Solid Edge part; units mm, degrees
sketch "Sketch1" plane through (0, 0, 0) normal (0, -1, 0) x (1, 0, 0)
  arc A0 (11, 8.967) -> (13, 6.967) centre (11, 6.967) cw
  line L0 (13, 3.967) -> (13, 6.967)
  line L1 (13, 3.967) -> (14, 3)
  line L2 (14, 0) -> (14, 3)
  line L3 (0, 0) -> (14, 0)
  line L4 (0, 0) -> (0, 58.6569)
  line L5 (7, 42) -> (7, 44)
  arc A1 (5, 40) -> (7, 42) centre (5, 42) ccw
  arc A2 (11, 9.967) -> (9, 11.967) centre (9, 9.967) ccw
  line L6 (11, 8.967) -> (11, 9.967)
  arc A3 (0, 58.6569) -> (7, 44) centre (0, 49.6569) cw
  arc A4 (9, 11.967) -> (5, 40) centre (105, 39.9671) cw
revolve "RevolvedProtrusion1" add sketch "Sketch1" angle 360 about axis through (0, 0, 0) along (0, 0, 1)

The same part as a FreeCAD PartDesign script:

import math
import FreeCAD as App
import Part
import Sketcher

V = App.Vector
Q = App.Units.Quantity

doc = App.newDocument("Part")
params = doc.addObject("Spreadsheet::Sheet", "Params")
for row, (alias, value) in enumerate([
    ("sketch1_radius", "2 mm"),
    ("sketch1_radius2", "9 mm"),
    ("sketch1_width", "14 mm"),
    ("sketch1_height", "1 mm"),
    ("sketch1_height2", "2 mm"),
    ("revolution_angle", "360 deg"),
], start=1):
    params.set(f"A{row}", alias)
    params.set(f"B{row}", "=" + value)
    params.setAlias(f"B{row}", alias)

body = doc.addObject("PartDesign::Body", "Body")

# Sketch on XZ plane
sketch1 = body.newObject("Sketcher::SketchObject", "Sketch")
sketch1.AttachmentSupport = (doc.getObject("XZ_Plane"), [""])
sketch1.MapMode = "FlatFace"
sketch1.addGeometry(Part.ArcOfCircle(Part.Circle(V(11, 7, 0), V(0, 0, 1), 2), math.radians(0), math.radians(90)), False)
sketch1.addGeometry(Part.LineSegment(V(11, 9, 0), V(11, 10, 0)), False)
sketch1.addGeometry(Part.ArcOfCircle(Part.Circle(V(9, 10, 0), V(0, 0, 1), 2), math.radians(0), math.radians(90)), False)
sketch1.addGeometry(Part.ArcOfCircle(Part.Circle(V(105, 40, 0), V(0, 0, 1), 100), math.radians(179.98), math.radians(196.26)), False)
sketch1.addGeometry(Part.ArcOfCircle(Part.Circle(V(5, 42, 0), V(0, 0, 1), 2), math.radians(-90), math.radians(0)), False)
sketch1.addGeometry(Part.LineSegment(V(7, 42, 0), V(7, 44, 0)), False)
sketch1.addGeometry(Part.ArcOfCircle(Part.Circle(V(0, 49.7, 0), V(0, 0, 1), 9), math.radians(-39), math.radians(90)), False)
sketch1.addGeometry(Part.LineSegment(V(0, 58.7, 0), V(0, 0, 0)), False)
sketch1.addGeometry(Part.LineSegment(V(0, 0, 0), V(14, 0, 0)), False)
sketch1.addGeometry(Part.LineSegment(V(14, 0, 0), V(14, 3, 0)), False)
sketch1.addGeometry(Part.LineSegment(V(14, 3, 0), V(13, 4, 0)), False)
sketch1.addGeometry(Part.LineSegment(V(13, 4, 0), V(13, 7, 0)), False)
sketch1.addConstraint(Sketcher.Constraint("Coincident", 0, 2, 1, 1))
sketch1.addConstraint(Sketcher.Constraint("Tangent", 1, 2, 2, 1))
sketch1.addConstraint(Sketcher.Constraint("Coincident", 2, 2, 3, 2))
sketch1.addConstraint(Sketcher.Constraint("Coincident", 3, 1, 4, 1))
sketch1.addConstraint(Sketcher.Constraint("Tangent", 4, 2, 5, 1))
sketch1.addConstraint(Sketcher.Constraint("Coincident", 5, 2, 6, 1))
sketch1.addConstraint(Sketcher.Constraint("Coincident", 6, 2, 7, 1))
sketch1.addConstraint(Sketcher.Constraint("Coincident", 7, 2, 8, 1))
sketch1.addConstraint(Sketcher.Constraint("Coincident", 8, 2, 9, 1))
sketch1.addConstraint(Sketcher.Constraint("Coincident", 9, 2, 10, 1))
sketch1.addConstraint(Sketcher.Constraint("Coincident", 10, 2, 11, 1))
sketch1.addConstraint(Sketcher.Constraint("Tangent", 11, 2, 0, 1))
sketch1.addConstraint(Sketcher.Constraint("Vertical", 1))
sketch1.addConstraint(Sketcher.Constraint("Vertical", 5))
sketch1.addConstraint(Sketcher.Constraint("Vertical", 7))
sketch1.addConstraint(Sketcher.Constraint("Horizontal", 8))
sketch1.addConstraint(Sketcher.Constraint("Vertical", 9))
sketch1.addConstraint(Sketcher.Constraint("Vertical", 11))
sketch1.addConstraint(Sketcher.Constraint("Coincident", 7, 2, -1, 1))
sketch1.addConstraint(Sketcher.Constraint("Equal", 0, 2))
sketch1.addConstraint(Sketcher.Constraint("Equal", 2, 4))
sketch1.addConstraint(Sketcher.Constraint("PointOnObject", 6, 3, -2))
sketch1.addConstraint(Sketcher.Constraint("Vertical", 4, 3, 3, 1))
sketch1.addConstraint(Sketcher.Constraint("Equal", 9, 11))
sketch1.addConstraint(Sketcher.Constraint("Radius", 0, 2.0))
sketch1.addConstraint(Sketcher.Constraint("Radius", 6, 9.0))
sketch1.addConstraint(Sketcher.Constraint("DistanceX", 8, 1, 8, 2, 14.0))
sketch1.addConstraint(Sketcher.Constraint("DistanceY", 1, 1, 1, 2, 1.0))
sketch1.addConstraint(Sketcher.Constraint("DistanceY", 5, 1, 5, 2, 2.0))
sketch1.addConstraint(Sketcher.Constraint("DistanceY", 9, 1, 9, 2, 3.0))
sketch1.addConstraint(Sketcher.Constraint("DistanceX", -1, 1, 0, 3, 11.0))
sketch1.addConstraint(Sketcher.Constraint("DistanceX", -1, 1, 2, 3, 9.0))
sketch1.addConstraint(Sketcher.Constraint("DistanceX", -1, 1, 4, 3, 5.0))
sketch1.addConstraint(Sketcher.Constraint("DistanceY", -1, 1, 4, 3, 42.0))
sketch1.addConstraint(Sketcher.Constraint("DistanceX", -1, 1, 2, 2, 9.0))
sketch1.addConstraint(Sketcher.Constraint("Radius", 3, 99.999))
sketch1.addConstraint(Sketcher.Constraint("Angle", 10, Q("135.9612 deg")))
sketch1.setExpression("Constraints[24]", "Params.sketch1_radius")
sketch1.setExpression("Constraints[25]", "Params.sketch1_radius2")
sketch1.setExpression("Constraints[26]", "Params.sketch1_width")
sketch1.setExpression("Constraints[27]", "Params.sketch1_height")
sketch1.setExpression("Constraints[28]", "Params.sketch1_height2")
revolution = body.newObject("PartDesign::Revolution", "Revolution")
revolution.Profile = sketch1
revolution.ReferenceAxis = (sketch1, ["V_Axis"])
revolution.setExpression("Angle", "Params.revolution_angle")

doc.recompute()
